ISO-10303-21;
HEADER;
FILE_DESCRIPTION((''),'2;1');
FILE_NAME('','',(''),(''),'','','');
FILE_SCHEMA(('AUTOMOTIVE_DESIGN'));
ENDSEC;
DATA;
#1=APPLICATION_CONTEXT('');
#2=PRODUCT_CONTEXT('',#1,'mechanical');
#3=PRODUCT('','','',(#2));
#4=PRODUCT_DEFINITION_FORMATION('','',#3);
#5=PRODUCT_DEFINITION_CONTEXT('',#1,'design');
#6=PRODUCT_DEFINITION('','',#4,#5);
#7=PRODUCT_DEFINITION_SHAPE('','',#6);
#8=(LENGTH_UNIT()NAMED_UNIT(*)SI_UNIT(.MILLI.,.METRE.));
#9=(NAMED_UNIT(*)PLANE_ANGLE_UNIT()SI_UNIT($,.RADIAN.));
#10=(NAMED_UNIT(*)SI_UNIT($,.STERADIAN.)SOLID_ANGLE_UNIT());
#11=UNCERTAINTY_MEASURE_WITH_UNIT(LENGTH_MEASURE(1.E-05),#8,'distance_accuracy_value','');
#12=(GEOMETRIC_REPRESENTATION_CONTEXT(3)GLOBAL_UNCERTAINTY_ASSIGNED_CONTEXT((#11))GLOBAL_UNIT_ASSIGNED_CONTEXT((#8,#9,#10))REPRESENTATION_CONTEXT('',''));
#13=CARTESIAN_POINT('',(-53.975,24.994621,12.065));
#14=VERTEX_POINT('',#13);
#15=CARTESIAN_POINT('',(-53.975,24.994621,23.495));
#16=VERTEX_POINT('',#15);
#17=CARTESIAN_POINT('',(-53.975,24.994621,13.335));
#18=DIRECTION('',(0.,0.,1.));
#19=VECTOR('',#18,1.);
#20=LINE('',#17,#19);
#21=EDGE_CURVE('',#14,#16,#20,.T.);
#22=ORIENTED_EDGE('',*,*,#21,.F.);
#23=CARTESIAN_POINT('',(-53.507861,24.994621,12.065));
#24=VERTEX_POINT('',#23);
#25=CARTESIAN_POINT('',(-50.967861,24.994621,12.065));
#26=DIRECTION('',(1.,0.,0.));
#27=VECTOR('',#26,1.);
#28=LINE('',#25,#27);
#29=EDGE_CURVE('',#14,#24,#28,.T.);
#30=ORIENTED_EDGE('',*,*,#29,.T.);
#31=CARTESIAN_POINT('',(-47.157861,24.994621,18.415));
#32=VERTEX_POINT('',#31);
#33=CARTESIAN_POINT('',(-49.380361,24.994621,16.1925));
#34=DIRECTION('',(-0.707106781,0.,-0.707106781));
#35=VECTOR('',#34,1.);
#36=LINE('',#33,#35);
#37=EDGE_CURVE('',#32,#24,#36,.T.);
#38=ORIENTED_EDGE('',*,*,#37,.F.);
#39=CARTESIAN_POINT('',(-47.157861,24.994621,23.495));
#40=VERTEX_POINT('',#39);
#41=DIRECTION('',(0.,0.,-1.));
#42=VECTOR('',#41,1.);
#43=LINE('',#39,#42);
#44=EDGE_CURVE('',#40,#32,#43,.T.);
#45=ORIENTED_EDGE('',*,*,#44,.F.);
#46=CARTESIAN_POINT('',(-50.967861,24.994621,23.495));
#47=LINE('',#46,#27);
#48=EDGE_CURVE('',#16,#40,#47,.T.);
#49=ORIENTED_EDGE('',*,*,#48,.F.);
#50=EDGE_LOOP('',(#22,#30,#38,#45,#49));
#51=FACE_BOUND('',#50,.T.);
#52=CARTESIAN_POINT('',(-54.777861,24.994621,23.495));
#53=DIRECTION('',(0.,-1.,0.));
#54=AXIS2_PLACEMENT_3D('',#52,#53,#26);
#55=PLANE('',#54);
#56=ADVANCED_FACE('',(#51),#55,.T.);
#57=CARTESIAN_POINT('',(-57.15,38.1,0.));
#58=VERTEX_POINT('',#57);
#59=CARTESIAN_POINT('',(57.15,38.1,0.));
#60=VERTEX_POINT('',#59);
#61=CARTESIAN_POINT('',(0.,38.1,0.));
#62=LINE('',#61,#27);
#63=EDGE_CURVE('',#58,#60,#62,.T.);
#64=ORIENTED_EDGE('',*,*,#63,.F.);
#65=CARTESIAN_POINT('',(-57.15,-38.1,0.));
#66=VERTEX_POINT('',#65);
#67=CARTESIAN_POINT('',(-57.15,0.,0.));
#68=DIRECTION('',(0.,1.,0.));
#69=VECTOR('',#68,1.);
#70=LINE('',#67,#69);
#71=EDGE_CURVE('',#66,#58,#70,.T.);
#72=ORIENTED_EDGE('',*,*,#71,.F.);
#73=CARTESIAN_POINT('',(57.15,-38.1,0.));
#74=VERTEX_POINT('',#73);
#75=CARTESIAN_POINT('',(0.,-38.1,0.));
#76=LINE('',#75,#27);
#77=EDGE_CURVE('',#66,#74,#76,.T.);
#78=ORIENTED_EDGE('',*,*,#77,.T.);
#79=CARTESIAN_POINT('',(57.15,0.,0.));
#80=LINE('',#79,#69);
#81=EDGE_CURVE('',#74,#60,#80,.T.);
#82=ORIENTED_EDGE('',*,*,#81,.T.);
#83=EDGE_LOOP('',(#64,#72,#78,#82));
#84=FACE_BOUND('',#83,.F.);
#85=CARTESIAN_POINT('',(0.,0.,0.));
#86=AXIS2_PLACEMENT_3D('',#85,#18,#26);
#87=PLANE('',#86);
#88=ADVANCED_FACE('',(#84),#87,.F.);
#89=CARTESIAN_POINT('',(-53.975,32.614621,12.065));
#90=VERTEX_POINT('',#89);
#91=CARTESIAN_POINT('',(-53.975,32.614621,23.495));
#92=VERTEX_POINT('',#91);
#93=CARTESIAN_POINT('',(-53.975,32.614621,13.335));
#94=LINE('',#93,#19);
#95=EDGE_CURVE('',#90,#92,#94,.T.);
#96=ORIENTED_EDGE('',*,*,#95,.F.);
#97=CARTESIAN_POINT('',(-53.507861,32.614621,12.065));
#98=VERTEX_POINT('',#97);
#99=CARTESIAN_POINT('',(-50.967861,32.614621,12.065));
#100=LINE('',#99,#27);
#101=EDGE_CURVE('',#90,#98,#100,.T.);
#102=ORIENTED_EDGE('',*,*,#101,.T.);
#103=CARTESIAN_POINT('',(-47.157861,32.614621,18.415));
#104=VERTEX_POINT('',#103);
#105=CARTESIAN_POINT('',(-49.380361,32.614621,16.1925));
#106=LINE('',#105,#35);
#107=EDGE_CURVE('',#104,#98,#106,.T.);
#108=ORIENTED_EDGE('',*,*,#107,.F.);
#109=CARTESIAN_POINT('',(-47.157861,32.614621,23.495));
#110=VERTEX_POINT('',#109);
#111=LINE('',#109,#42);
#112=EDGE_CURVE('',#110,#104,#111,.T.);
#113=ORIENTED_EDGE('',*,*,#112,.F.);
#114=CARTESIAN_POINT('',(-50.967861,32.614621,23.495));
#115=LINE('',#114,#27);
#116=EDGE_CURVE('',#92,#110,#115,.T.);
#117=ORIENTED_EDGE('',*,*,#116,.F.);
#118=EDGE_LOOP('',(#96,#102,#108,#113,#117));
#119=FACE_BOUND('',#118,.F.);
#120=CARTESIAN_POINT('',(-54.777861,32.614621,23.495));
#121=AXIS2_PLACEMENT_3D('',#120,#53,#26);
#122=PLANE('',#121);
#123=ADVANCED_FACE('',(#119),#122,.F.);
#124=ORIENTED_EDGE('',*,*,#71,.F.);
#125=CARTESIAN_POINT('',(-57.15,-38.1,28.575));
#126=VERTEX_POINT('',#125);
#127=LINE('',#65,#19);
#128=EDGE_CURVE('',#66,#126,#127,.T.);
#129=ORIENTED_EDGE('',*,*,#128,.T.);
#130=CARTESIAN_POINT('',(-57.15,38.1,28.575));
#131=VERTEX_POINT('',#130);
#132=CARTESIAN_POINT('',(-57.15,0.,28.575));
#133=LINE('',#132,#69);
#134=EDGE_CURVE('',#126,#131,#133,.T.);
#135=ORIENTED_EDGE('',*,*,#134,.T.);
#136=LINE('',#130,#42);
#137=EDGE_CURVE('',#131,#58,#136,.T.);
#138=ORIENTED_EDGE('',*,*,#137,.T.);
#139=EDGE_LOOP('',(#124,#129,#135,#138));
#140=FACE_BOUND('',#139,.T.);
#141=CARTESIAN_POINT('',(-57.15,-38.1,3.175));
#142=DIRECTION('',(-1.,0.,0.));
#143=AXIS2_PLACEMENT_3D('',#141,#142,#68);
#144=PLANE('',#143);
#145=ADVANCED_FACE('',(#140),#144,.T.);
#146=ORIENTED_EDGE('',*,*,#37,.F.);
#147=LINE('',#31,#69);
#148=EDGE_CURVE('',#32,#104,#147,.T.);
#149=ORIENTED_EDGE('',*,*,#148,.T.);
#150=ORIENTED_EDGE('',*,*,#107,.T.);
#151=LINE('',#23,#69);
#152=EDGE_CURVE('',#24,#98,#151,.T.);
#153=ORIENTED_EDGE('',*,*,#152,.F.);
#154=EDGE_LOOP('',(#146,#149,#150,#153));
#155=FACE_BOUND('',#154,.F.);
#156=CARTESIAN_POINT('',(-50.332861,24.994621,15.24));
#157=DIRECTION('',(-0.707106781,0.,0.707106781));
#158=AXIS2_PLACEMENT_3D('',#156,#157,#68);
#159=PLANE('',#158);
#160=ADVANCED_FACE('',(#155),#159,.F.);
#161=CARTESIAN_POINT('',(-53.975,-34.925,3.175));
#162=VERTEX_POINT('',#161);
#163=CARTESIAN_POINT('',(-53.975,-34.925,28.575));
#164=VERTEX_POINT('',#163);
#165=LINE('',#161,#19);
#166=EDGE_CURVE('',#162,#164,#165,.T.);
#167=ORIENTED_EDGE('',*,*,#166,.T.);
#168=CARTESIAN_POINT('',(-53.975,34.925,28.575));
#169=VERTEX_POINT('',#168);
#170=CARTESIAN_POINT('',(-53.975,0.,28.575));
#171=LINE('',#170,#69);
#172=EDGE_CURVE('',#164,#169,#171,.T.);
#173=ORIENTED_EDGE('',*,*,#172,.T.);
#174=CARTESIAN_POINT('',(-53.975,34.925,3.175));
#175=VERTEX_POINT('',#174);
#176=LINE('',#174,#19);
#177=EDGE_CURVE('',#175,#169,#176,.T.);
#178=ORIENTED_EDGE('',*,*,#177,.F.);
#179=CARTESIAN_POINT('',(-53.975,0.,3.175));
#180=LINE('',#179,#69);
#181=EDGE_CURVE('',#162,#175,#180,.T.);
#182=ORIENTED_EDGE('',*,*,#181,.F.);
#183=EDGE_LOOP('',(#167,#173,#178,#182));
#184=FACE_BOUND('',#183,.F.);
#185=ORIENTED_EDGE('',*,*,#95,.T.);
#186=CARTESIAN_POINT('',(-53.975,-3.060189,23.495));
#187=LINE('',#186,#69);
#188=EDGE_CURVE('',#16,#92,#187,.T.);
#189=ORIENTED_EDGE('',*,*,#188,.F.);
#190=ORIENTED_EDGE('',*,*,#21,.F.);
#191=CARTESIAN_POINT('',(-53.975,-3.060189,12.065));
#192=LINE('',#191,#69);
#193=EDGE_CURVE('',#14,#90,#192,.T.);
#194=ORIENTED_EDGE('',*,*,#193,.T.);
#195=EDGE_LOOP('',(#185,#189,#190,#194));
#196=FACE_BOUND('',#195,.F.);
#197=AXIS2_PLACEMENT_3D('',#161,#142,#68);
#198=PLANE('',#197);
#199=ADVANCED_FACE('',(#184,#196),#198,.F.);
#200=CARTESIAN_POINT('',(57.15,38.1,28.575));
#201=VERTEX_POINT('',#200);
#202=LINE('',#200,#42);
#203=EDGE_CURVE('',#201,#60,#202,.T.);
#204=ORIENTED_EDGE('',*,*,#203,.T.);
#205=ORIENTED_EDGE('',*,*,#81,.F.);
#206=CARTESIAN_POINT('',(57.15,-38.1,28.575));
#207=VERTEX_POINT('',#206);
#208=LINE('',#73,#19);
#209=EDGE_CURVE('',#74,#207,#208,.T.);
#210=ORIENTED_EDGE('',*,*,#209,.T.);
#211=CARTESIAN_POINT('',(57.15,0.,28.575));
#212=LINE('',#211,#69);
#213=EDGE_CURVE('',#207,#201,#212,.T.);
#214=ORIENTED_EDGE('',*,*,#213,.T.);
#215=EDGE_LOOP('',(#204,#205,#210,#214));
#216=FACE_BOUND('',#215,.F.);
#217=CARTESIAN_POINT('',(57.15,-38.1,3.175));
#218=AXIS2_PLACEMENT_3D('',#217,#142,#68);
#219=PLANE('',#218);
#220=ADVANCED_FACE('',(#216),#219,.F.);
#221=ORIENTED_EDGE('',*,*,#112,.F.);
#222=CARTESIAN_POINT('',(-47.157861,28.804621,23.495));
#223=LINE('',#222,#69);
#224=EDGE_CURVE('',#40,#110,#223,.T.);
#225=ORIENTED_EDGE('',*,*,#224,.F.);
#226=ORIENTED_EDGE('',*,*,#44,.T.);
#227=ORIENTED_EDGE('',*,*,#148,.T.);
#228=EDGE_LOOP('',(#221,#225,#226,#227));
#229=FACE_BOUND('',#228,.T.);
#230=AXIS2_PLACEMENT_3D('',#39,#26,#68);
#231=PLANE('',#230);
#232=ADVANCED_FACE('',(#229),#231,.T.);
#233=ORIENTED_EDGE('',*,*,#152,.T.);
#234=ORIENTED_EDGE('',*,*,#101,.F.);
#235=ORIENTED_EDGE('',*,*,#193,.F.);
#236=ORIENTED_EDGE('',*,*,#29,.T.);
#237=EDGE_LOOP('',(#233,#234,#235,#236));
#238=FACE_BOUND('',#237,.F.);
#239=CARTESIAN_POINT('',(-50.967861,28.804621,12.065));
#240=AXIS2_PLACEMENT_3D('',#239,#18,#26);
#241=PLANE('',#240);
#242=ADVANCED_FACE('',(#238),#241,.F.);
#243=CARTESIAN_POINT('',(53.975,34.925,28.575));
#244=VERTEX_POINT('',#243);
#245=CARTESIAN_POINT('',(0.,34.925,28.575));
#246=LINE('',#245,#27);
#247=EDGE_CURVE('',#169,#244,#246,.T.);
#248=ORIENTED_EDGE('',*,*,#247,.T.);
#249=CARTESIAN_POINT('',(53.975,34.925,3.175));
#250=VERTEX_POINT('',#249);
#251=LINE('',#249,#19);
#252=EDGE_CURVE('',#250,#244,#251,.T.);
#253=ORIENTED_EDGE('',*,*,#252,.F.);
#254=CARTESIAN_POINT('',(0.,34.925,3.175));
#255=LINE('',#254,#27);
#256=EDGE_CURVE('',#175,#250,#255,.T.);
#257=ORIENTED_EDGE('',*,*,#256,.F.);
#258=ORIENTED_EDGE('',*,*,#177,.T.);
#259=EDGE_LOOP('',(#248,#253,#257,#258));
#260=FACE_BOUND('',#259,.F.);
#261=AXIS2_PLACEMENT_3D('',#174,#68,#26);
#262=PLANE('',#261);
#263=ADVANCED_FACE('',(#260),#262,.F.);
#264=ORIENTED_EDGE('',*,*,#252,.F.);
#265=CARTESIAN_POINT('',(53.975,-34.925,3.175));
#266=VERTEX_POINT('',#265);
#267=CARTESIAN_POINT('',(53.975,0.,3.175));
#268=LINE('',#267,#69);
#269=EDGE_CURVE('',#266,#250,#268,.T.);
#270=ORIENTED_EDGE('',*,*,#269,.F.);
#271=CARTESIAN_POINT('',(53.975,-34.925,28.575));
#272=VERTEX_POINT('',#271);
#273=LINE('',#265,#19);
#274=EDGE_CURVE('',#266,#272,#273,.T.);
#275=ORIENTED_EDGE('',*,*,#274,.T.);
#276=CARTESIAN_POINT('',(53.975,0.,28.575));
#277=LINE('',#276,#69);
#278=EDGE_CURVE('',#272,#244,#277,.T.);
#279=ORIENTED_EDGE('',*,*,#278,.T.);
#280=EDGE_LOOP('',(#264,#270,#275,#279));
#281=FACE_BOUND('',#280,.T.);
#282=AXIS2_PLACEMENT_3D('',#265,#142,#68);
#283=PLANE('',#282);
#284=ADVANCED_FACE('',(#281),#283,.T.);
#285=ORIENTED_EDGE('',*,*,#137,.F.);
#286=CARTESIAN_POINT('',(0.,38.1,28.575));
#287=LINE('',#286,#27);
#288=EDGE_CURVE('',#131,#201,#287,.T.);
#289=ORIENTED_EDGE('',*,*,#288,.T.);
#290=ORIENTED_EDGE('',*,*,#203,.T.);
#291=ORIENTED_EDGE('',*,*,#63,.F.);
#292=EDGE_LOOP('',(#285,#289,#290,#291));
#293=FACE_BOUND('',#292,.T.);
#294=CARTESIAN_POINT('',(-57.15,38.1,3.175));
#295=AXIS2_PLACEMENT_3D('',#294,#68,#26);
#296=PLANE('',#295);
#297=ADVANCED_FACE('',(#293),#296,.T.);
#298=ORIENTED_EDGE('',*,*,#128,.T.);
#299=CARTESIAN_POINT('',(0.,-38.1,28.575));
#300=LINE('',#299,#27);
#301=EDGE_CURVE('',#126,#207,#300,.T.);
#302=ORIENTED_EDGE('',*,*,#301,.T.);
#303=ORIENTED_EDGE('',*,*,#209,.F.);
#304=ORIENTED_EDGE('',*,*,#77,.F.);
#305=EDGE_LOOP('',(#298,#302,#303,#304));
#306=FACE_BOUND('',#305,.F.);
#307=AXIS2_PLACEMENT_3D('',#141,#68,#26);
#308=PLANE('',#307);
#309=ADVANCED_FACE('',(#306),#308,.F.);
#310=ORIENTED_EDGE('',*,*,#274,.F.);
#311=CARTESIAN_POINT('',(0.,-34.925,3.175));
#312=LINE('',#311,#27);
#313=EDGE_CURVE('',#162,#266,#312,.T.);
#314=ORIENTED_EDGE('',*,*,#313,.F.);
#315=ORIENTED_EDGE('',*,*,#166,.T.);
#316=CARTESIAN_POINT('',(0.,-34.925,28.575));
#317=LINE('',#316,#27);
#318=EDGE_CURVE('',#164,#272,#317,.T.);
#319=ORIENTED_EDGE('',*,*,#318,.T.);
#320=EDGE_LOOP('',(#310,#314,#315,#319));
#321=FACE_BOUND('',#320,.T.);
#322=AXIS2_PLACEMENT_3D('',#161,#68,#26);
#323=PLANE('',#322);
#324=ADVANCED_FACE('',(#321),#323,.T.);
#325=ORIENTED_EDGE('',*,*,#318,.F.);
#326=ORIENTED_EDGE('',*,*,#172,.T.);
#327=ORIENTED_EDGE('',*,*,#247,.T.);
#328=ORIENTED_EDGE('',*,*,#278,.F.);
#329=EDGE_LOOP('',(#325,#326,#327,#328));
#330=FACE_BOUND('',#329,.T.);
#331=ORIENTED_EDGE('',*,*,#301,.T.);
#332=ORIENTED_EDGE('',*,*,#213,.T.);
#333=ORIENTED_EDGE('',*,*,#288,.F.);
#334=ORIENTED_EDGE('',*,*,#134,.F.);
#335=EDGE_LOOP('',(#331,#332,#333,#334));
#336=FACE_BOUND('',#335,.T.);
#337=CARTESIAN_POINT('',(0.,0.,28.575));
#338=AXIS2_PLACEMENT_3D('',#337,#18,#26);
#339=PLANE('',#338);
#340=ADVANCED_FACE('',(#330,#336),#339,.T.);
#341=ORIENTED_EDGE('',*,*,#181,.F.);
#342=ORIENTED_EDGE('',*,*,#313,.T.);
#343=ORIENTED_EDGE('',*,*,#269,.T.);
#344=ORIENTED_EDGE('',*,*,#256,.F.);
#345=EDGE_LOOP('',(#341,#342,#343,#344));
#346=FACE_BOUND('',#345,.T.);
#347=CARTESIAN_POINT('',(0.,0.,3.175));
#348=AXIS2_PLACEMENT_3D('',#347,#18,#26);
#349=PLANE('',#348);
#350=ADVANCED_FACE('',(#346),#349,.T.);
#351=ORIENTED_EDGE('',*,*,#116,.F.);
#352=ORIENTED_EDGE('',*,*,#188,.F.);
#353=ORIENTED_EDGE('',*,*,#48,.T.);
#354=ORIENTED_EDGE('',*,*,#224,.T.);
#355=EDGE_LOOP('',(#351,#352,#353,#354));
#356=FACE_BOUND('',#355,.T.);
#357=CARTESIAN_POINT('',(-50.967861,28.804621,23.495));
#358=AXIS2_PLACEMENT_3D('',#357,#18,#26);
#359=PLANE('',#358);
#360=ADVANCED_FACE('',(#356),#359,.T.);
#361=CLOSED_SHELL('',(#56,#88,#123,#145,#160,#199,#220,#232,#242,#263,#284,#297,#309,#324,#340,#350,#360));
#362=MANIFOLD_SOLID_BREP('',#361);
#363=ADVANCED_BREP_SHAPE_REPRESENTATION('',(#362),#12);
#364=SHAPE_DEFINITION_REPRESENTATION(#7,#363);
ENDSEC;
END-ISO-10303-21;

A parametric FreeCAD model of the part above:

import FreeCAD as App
import Part
import Sketcher
Q = App.Units.Quantity


def edges_at(feature, points):
    """Names of the edges that pass closest to the given points."""
    edges = feature.Shape.Edges
    near = lambda p: min(range(len(edges)), key=lambda i: edges[i].distToShape(Part.Vertex(*p))[0])
    return sorted({f"Edge{near(p) + 1}" for p in points})


def add_polygon(sketch, points):
    """Adds a closed chain of lines whose ends are joined by coincident constraints."""
    first, n = sketch.GeometryCount, len(points)
    for a, b in zip(points, points[1:] + points[:1]):
        sketch.addGeometry(Part.LineSegment(App.Vector(*a, 0), App.Vector(*b, 0)), False)
    for i in range(n):
        sketch.addConstraint(Sketcher.Constraint("Coincident", first + i, 2, first + (i + 1) % n, 1))

doc = App.newDocument("Part")
body = doc.addObject("PartDesign::Body", "Body")

sketch1 = body.newObject("Sketcher::SketchObject", "Sketch")
sketch1.AttachmentSupport = (doc.getObject("XY_Plane"), [""])
sketch1.MapMode = "FlatFace"
add_polygon(sketch1, [(-57, 38), (-57, -38), (57, -38), (57, 38)])
sketch1.addConstraint(Sketcher.Constraint("Vertical", 0))
sketch1.addConstraint(Sketcher.Constraint("Horizontal", 1))
sketch1.addConstraint(Sketcher.Constraint("Vertical", 2))
sketch1.addConstraint(Sketcher.Constraint("Horizontal", 3))
sketch1.addConstraint(Sketcher.Constraint("Symmetric", 0, 2, 2, 2, -1, 1))
sketch1.addConstraint(Sketcher.Constraint("DistanceY", 0, 2, 0, 1, Q("3 in")))
sketch1.addConstraint(Sketcher.Constraint("DistanceX", 1, 1, 1, 2, Q("4.5 in")))
pad1 = body.newObject("PartDesign::Pad", "Pad")
pad1.Profile = sketch1
pad1.Length = Q("0.125 in")

sketch2 = body.newObject("Sketcher::SketchObject", "Sketch001")
sketch2.AttachmentSupport = (doc.getObject("XY_Plane"), [""])
sketch2.MapMode = "FlatFace"
sketch2.AttachmentOffset = App.Placement(App.Vector(0, 0, 0.125 * 25.4), App.Rotation())
add_polygon(sketch2, [(-57, 38), (-57, -38), (57, -38), (57, 38)])
add_polygon(sketch2, [(54, -35), (-54, -35), (-54, 35), (54, 35)])
sketch2.addConstraint(Sketcher.Constraint("Vertical", 0))
sketch2.addConstraint(Sketcher.Constraint("Horizontal", 1))
sketch2.addConstraint(Sketcher.Constraint("Vertical", 2))
sketch2.addConstraint(Sketcher.Constraint("Horizontal", 3))
sketch2.addConstraint(Sketcher.Constraint("Horizontal", 4))
sketch2.addConstraint(Sketcher.Constraint("Vertical", 5))
sketch2.addConstraint(Sketcher.Constraint("Horizontal", 6))
sketch2.addConstraint(Sketcher.Constraint("Vertical", 7))
sketch2.addConstraint(Sketcher.Constraint("Symmetric", 0, 2, 2, 2, -1, 1))
sketch2.addConstraint(Sketcher.Constraint("Symmetric", 4, 2, 6, 2, -1, 1))
sketch2.addConstraint(Sketcher.Constraint("DistanceY", 0, 2, 0, 1, Q("3 in")))
sketch2.addConstraint(Sketcher.Constraint("DistanceX", 1, 1, 1, 2, Q("4.5 in")))
sketch2.addConstraint(Sketcher.Constraint("DistanceX", 4, 2, 4, 1, Q("4.25 in")))
sketch2.addConstraint(Sketcher.Constraint("DistanceY", 5, 1, 5, 2, Q("2.75 in")))
pad2 = body.newObject("PartDesign::Pad", "Pad001")
pad2.Profile = sketch2
pad2.Length = Q("1 in")

sketch3 = body.newObject("Sketcher::SketchObject", "Sketch002")
sketch3.AttachmentSupport = (doc.getObject("XY_Plane"), [""])
sketch3.MapMode = "FlatFace"
sketch3.AttachmentOffset = App.Placement(App.Vector(0, 0, 0.925 * 25.4), App.Rotation())
add_polygon(sketch3, [(-55, 33), (-55, 25), (-47, 25), (-47, 33)])
sketch3.addConstraint(Sketcher.Constraint("Vertical", 0))
sketch3.addConstraint(Sketcher.Constraint("Horizontal", 1))
sketch3.addConstraint(Sketcher.Constraint("Vertical", 2))
sketch3.addConstraint(Sketcher.Constraint("Horizontal", 3))
sketch3.addConstraint(Sketcher.Constraint("Equal", 3, 0))
sketch3.addConstraint(Sketcher.Constraint("DistanceX", 1, 1, 1, 2, Q("0.3 in")))
sketch3.addConstraint(Sketcher.Constraint("DistanceX", 0, 2, -1, 1, 54.777861))
sketch3.addConstraint(Sketcher.Constraint("DistanceY", -1, 1, 0, 2, 24.994621))
pad3 = body.newObject("PartDesign::Pad", "Pad002")
pad3.Profile = sketch3
pad3.Length = Q("0.45 in")
pad3.Reversed = True
doc.recompute()

chamfer = body.newObject("PartDesign::Chamfer", "Chamfer")
chamfer.Base = (pad3, edges_at(pad3, [(-47.158, 28.805, 12.065)]))
chamfer.Size = Q("0.25 in")

doc.recompute()
